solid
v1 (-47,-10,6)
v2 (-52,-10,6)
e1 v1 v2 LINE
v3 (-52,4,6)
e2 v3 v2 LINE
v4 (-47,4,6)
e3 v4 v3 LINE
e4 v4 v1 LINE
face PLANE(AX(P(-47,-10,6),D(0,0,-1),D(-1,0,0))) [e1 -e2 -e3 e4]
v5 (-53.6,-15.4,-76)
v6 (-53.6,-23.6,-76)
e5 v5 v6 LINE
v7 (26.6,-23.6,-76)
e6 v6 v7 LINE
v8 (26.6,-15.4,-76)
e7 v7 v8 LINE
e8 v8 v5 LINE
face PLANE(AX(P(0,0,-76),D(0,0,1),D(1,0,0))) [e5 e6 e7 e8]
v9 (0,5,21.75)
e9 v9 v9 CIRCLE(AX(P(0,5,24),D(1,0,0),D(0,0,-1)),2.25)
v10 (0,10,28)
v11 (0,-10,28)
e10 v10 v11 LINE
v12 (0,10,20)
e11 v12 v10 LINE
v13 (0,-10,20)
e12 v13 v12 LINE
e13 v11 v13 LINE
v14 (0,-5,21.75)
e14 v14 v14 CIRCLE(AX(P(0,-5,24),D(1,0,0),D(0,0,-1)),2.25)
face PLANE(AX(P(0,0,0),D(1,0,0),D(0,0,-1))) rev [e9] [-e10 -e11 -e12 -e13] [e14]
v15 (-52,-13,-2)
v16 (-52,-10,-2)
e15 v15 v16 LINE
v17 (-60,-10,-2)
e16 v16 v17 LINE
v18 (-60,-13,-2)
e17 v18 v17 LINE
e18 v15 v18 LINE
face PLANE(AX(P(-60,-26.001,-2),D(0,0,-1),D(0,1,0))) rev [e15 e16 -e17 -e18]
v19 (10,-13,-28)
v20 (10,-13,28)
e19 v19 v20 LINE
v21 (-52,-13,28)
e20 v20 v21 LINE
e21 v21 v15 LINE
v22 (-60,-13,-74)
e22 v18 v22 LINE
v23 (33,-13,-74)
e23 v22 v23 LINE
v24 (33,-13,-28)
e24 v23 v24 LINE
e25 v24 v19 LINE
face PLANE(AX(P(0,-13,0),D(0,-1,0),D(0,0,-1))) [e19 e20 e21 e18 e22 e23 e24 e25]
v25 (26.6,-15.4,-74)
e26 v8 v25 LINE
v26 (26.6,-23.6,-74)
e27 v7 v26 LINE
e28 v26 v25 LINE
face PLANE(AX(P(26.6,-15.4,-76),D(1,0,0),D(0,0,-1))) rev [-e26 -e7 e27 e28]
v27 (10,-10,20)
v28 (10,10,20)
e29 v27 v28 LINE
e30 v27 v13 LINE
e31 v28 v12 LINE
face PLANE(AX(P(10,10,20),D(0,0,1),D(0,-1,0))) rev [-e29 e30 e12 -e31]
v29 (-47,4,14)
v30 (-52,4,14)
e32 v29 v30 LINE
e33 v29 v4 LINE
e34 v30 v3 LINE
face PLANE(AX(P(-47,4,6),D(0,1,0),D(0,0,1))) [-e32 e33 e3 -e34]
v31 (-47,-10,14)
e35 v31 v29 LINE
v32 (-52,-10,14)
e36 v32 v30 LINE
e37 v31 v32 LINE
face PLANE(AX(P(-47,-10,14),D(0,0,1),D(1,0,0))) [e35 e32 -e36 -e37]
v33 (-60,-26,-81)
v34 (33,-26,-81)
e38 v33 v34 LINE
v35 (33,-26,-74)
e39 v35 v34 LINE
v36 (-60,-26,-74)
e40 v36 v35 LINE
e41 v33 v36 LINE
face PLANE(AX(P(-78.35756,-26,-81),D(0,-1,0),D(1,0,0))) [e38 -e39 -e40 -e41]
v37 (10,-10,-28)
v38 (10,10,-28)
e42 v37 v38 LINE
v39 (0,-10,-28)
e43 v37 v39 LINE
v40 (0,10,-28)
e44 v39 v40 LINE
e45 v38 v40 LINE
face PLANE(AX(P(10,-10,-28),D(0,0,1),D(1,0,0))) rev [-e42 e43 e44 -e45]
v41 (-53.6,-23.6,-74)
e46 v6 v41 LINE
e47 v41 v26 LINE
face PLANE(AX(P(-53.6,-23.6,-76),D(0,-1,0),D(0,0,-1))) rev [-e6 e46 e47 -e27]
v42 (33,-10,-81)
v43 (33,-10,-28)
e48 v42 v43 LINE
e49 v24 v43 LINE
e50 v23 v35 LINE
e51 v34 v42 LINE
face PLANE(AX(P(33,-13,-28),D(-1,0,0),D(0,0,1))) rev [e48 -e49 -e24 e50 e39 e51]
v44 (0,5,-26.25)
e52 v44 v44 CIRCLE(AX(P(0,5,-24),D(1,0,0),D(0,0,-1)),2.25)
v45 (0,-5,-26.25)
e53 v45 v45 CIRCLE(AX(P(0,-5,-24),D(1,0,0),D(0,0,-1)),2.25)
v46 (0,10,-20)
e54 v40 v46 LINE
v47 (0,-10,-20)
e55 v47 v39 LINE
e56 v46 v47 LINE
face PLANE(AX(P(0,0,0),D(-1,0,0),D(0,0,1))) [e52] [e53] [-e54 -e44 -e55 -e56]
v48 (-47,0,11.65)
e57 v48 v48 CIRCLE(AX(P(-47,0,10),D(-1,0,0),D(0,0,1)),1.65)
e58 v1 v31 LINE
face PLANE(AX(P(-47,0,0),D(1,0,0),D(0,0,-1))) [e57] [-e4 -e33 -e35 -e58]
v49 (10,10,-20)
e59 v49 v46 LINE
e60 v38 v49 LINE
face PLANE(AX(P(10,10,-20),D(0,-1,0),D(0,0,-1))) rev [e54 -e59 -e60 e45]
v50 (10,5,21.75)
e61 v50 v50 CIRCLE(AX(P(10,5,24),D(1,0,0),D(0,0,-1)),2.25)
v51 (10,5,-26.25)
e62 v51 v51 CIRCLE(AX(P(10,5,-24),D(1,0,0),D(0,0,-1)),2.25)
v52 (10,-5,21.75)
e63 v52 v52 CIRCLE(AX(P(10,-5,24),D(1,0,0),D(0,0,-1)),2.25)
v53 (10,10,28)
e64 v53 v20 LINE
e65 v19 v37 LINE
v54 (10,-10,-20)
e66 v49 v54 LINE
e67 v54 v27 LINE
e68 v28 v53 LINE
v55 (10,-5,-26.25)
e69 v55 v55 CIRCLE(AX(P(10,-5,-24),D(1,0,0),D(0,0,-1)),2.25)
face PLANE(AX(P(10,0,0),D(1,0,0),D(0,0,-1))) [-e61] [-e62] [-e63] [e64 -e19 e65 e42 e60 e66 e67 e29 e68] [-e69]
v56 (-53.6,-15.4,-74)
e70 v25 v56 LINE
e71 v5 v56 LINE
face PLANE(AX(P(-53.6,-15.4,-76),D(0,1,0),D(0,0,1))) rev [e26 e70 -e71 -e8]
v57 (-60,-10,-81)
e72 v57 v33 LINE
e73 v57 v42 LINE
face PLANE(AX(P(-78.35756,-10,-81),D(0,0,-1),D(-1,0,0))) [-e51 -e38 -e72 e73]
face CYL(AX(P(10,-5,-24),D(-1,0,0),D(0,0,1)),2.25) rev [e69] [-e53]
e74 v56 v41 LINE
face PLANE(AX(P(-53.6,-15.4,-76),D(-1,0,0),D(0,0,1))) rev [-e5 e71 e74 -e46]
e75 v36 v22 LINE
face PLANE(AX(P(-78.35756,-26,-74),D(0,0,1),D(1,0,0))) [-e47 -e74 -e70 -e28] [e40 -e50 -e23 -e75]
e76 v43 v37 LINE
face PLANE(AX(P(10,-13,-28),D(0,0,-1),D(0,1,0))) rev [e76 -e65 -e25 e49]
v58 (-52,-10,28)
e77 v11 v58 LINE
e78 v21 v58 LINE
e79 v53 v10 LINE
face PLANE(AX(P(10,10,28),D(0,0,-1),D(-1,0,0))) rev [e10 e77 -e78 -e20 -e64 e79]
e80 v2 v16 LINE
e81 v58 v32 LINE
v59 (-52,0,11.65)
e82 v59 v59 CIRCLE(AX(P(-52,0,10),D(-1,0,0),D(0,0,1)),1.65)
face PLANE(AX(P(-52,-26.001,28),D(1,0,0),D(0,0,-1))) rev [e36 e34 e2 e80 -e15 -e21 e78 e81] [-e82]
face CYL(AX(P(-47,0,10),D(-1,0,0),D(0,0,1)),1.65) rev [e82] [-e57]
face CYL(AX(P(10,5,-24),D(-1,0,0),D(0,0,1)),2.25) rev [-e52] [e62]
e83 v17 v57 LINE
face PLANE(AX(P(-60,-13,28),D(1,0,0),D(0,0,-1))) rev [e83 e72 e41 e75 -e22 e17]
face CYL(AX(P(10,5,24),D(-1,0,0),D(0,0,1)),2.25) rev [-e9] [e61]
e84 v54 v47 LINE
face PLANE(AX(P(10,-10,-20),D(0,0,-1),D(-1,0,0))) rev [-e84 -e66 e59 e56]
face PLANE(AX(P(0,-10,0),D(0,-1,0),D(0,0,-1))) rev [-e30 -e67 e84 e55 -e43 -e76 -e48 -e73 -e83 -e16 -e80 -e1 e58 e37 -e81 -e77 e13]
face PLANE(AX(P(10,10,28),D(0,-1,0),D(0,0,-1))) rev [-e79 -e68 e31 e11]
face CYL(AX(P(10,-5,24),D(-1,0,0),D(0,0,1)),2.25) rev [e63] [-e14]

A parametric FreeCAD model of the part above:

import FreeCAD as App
import Part
import Sketcher
from FreeCAD import Vector


def add_polygon(sketch, points):
    """Adds a closed chain of lines whose ends are joined by coincident constraints."""
    first, n = sketch.GeometryCount, len(points)
    for a, b in zip(points, points[1:] + points[:1]):
        sketch.addGeometry(Part.LineSegment(App.Vector(*a, 0), App.Vector(*b, 0)), False)
    for i in range(n):
        sketch.addConstraint(Sketcher.Constraint("Coincident", first + i, 2, first + (i + 1) % n, 1))

doc = App.newDocument("Part")
params = doc.addObject("Spreadsheet::Sheet", "Params")
for row, (alias, value) in enumerate([
    ("sketch1_diameter", "4.5 mm"),
    ("sketch1_width", "20 mm"),
    ("sketch1_height", "8 mm"),
    ("pad1_length", "10 mm"),
    ("sketch2_diameter", "4.5 mm"),
    ("sketch2_width", "20 mm"),
    ("sketch2_height", "8 mm"),
    ("pad2_length", "10 mm"),
    ("sketch3_width", "93 mm"),
    ("sketch3_width2", "23 mm"),
    ("sketch3_height", "100 mm"),
    ("sketch3_height2", "44 mm"),
    ("pad3_length", "3 mm"),
    ("sketch4_width", "3 mm"),
    ("sketch4_width2", "13 mm"),
    ("sketch4_height", "9 mm"),
    ("sketch4_height2", "2 mm"),
    ("pad4_length", "93 mm"),
    ("sketch5_width", "8 mm"),
    ("sketch5_height", "30 mm"),
    ("sketch6_width", "80.2 mm"),
    ("sketch6_height", "8.2 mm"),
    ("pocket2_length", "2 mm"),
    ("sketch7_diameter", "3.3 mm"),
    ("sketch7_width", "14 mm"),
    ("sketch7_height", "8 mm"),
    ("pad5_length", "5 mm"),
], start=1):
    params.set(f"A{row}", alias)
    params.set(f"B{row}", "=" + value)
    params.setAlias(f"B{row}", alias)

body = doc.addObject("PartDesign::Body", "Body")

# Sketch on YZ plane
sketch1 = doc.addObject("Sketcher::SketchObject", "Sketch")
body.addObject(sketch1)
sketch1.AttachmentSupport = (doc.YZ_Plane, [""])
sketch1.MapMode = "FlatFace"
add_polygon(sketch1, [(10, 28), (-10, 28), (-10, 20), (10, 20)])  # lines 0-3
sketch1.addGeometry(Part.Circle(Vector(-5, 24, 0), Vector(0, 0, 1), 2.25), False)  # 4
sketch1.addGeometry(Part.Circle(Vector(5, 24, 0), Vector(0, 0, 1), 2.25), False)  # 5
sketch1.addConstraint(Sketcher.Constraint("Horizontal", 0))
sketch1.addConstraint(Sketcher.Constraint("Vertical", 1))
sketch1.addConstraint(Sketcher.Constraint("Horizontal", 2))
sketch1.addConstraint(Sketcher.Constraint("Vertical", 3))
sketch1.addConstraint(Sketcher.Constraint("Equal", 4, 5))
sketch1.addConstraint(Sketcher.Constraint("Symmetric", 4, 3, 5, 3, -2))
sketch1.addConstraint(Sketcher.Constraint("Diameter", 4, 4.5))
sketch1.addConstraint(Sketcher.Constraint("DistanceX", 0, 2, 0, 1, 20.0))
sketch1.addConstraint(Sketcher.Constraint("DistanceY", 1, 2, 1, 1, 8.0))
sketch1.addConstraint(Sketcher.Constraint("DistanceX", 4, 3, -1, 1, 5.0))
sketch1.addConstraint(Sketcher.Constraint("DistanceY", -1, 1, 4, 3, 24.0))
sketch1.addConstraint(Sketcher.Constraint("DistanceX", 0, 2, -1, 1, 10.0))
sketch1.addConstraint(Sketcher.Constraint("DistanceY", -1, 1, 0, 2, 28.0))
sketch1.setExpression("Constraints[10]", "Params.sketch1_diameter")
sketch1.setExpression("Constraints[11]", "Params.sketch1_width")
sketch1.setExpression("Constraints[12]", "Params.sketch1_height")
pad1 = doc.addObject("PartDesign::Pad", "Pad")
body.addObject(pad1)
pad1.Profile = sketch1
pad1.setExpression("Length", "Params.pad1_length")
body2 = doc.addObject("PartDesign::Body", "Body001")

# Sketch on YZ plane
sketch2 = doc.addObject("Sketcher::SketchObject", "Sketch001")
body2.addObject(sketch2)
sketch2.AttachmentSupport = (doc.getObject("YZ_Plane001"), [""])
sketch2.MapMode = "FlatFace"
add_polygon(sketch2, [(10, -20), (-10, -20), (-10, -28), (10, -28)])  # lines 0-3
sketch2.addGeometry(Part.Circle(Vector(-5, -24, 0), Vector(0, 0, 1), 2.25), False)  # 4
sketch2.addGeometry(Part.Circle(Vector(5, -24, 0), Vector(0, 0, 1), 2.25), False)  # 5
sketch2.addConstraint(Sketcher.Constraint("Horizontal", 0))
sketch2.addConstraint(Sketcher.Constraint("Vertical", 1))
sketch2.addConstraint(Sketcher.Constraint("Horizontal", 2))
sketch2.addConstraint(Sketcher.Constraint("Vertical", 3))
sketch2.addConstraint(Sketcher.Constraint("Equal", 4, 5))
sketch2.addConstraint(Sketcher.Constraint("Symmetric", 4, 3, 5, 3, -2))
sketch2.addConstraint(Sketcher.Constraint("Diameter", 4, 4.5))
sketch2.addConstraint(Sketcher.Constraint("DistanceX", 0, 2, 0, 1, 20.0))
sketch2.addConstraint(Sketcher.Constraint("DistanceY", 1, 2, 1, 1, 8.0))
sketch2.addConstraint(Sketcher.Constraint("DistanceX", 4, 3, -1, 1, 5.0))
sketch2.addConstraint(Sketcher.Constraint("DistanceY", 4, 3, -1, 1, 24.0))
sketch2.addConstraint(Sketcher.Constraint("DistanceX", 0, 2, -1, 1, 10.0))
sketch2.addConstraint(Sketcher.Constraint("DistanceY", 0, 2, -1, 1, 20.0))
sketch2.setExpression("Constraints[10]", "Params.sketch2_diameter")
sketch2.setExpression("Constraints[11]", "Params.sketch2_width")
sketch2.setExpression("Constraints[12]", "Params.sketch2_height")
pad2 = doc.addObject("PartDesign::Pad", "Pad001")
body2.addObject(pad2)
pad2.Profile = sketch2
pad2.setExpression("Length", "Params.pad2_length")
body.AllowCompound = True
doc.recompute()

boolean = doc.addObject("PartDesign::Boolean", "Boolean")
body.addObject(boolean)
boolean.Type = "Fuse"
boolean.addObjects([body2])

# Sketch on XZ plane
sketch3 = doc.addObject("Sketcher::SketchObject", "Sketch002")
body.addObject(sketch3)
sketch3.AttachmentSupport = (doc.XZ_Plane, [""])
sketch3.MapMode = "FlatFace"
sketch3.AttachmentOffset = App.Placement(Vector(0, 0, 10), App.Rotation())
add_polygon(sketch3, [(-60, 28), (-60, -72), (33, -72), (33, -28), (10, -28), (10, 28)])  # lines 0-5
sketch3.addConstraint(Sketcher.Constraint("Vertical", 0))
sketch3.addConstraint(Sketcher.Constraint("Horizontal", 1))
sketch3.addConstraint(Sketcher.Constraint("Vertical", 2))
sketch3.addConstraint(Sketcher.Constraint("Horizontal", 3))
sketch3.addConstraint(Sketcher.Constraint("Vertical", 4))
sketch3.addConstraint(Sketcher.Constraint("Horizontal", 5))
sketch3.addConstraint(Sketcher.Constraint("DistanceX", 1, 1, 1, 2, 93.0))
sketch3.addConstraint(Sketcher.Constraint("DistanceX", 3, 2, 3, 1, 23.0))
sketch3.addConstraint(Sketcher.Constraint("DistanceY", 0, 2, 0, 1, 100.0))
sketch3.addConstraint(Sketcher.Constraint("DistanceY", 2, 1, 2, 2, 44.0))
sketch3.addConstraint(Sketcher.Constraint("DistanceX", 0, 2, -1, 1, 60.0))
sketch3.addConstraint(Sketcher.Constraint("DistanceY", 0, 2, -1, 1, 72.0))
sketch3.setExpression("Constraints[12]", "Params.sketch3_width")
sketch3.setExpression("Constraints[13]", "Params.sketch3_width2")
sketch3.setExpression("Constraints[14]", "Params.sketch3_height")
sketch3.setExpression("Constraints[15]", "Params.sketch3_height2")
pad3 = doc.addObject("PartDesign::Pad", "Pad002")
body.addObject(pad3)
pad3.Profile = sketch3
pad3.setExpression("Length", "Params.pad3_length")

# Sketch on YZ plane
sketch4 = doc.addObject("Sketcher::SketchObject", "Sketch003")
body.addObject(sketch4)
sketch4.AttachmentSupport = (doc.YZ_Plane, [""])
sketch4.MapMode = "FlatFace"
sketch4.AttachmentOffset = App.Placement(Vector(0, 0, 33), App.Rotation())
add_polygon(sketch4, [(-10, -81), (-10, -72), (-13, -72), (-13, -74), (-26, -74), (-26, -81)])  # lines 0-5
sketch4.addConstraint(Sketcher.Constraint("Vertical", 0))
sketch4.addConstraint(Sketcher.Constraint("Horizontal", 1))
sketch4.addConstraint(Sketcher.Constraint("Vertical", 2))
sketch4.addConstraint(Sketcher.Constraint("Horizontal", 3))
sketch4.addConstraint(Sketcher.Constraint("Vertical", 4))
sketch4.addConstraint(Sketcher.Constraint("Horizontal", 5))
sketch4.addConstraint(Sketcher.Constraint("DistanceX", 1, 2, 1, 1, 3.0))
sketch4.addConstraint(Sketcher.Constraint("DistanceX", 3, 2, 3, 1, 13.0))
sketch4.addConstraint(Sketcher.Constraint("DistanceY", 0, 1, 0, 2, 9.0))
sketch4.addConstraint(Sketcher.Constraint("DistanceY", 2, 2, 2, 1, 2.0))
sketch4.addConstraint(Sketcher.Constraint("DistanceX", 0, 2, -1, 1, 10.0))
sketch4.addConstraint(Sketcher.Constraint("DistanceY", 0, 2, -1, 1, 72.0))
sketch4.setExpression("Constraints[12]", "Params.sketch4_width")
sketch4.setExpression("Constraints[13]", "Params.sketch4_width2")
sketch4.setExpression("Constraints[14]", "Params.sketch4_height")
sketch4.setExpression("Constraints[15]", "Params.sketch4_height2")
pad4 = doc.addObject("PartDesign::Pad", "Pad003")
body.addObject(pad4)
pad4.Profile = sketch4
pad4.setExpression("Length", "Params.pad4_length")
pad4.Reversed = True

# Sketch on XZ plane
sketch5 = doc.addObject("Sketcher::SketchObject", "Sketch004")
body.addObject(sketch5)
sketch5.AttachmentSupport = (doc.XZ_Plane, [""])
sketch5.MapMode = "FlatFace"
sketch5.AttachmentOffset = App.Placement(Vector(0, 0, 10), App.Rotation())
add_polygon(sketch5, [(-60, -2), (-60, 28), (-52, 28), (-52, -2)])  # lines 0-3
sketch5.addConstraint(Sketcher.Constraint("Vertical", 0))
sketch5.addConstraint(Sketcher.Constraint("Horizontal", 1))
sketch5.addConstraint(Sketcher.Constraint("Vertical", 2))
sketch5.addConstraint(Sketcher.Constraint("Horizontal", 3))
sketch5.addConstraint(Sketcher.Constraint("DistanceX", 1, 1, 1, 2, 8.0))
sketch5.addConstraint(Sketcher.Constraint("DistanceY", 0, 1, 0, 2, 30.0))
sketch5.addConstraint(Sketcher.Constraint("DistanceX", 0, 2, -1, 1, 60.0))
sketch5.addConstraint(Sketcher.Constraint("DistanceY", -1, 1, 0, 2, 28.0))
sketch5.setExpression("Constraints[8]", "Params.sketch5_width")
sketch5.setExpression("Constraints[9]", "Params.sketch5_height")
pocket1 = doc.addObject("PartDesign::Pocket", "Pocket")
body.addObject(pocket1)
pocket1.Profile = sketch5
pocket1.Type = "UpToFirst"
pocket1.Reversed = True

# Sketch on XY plane
sketch6 = doc.addObject("Sketcher::SketchObject", "Sketch005")
body.addObject(sketch6)
sketch6.AttachmentSupport = (doc.XY_Plane, [""])
sketch6.MapMode = "FlatFace"
sketch6.AttachmentOffset = App.Placement(Vector(0, 0, -74), App.Rotation())
add_polygon(sketch6, [(-53.6, -15.4), (-53.6, -23.6), (26.6, -23.6), (26.6, -15.4)])  # lines 0-3
sketch6.addConstraint(Sketcher.Constraint("Vertical", 0))
sketch6.addConstraint(Sketcher.Constraint("Horizontal", 1))
sketch6.addConstraint(Sketcher.Constraint("Vertical", 2))
sketch6.addConstraint(Sketcher.Constraint("Horizontal", 3))
sketch6.addConstraint(Sketcher.Constraint("DistanceX", 1, 1, 1, 2, 80.2))
sketch6.addConstraint(Sketcher.Constraint("DistanceY", 0, 2, 0, 1, 8.2))
sketch6.addConstraint(Sketcher.Constraint("DistanceX", 0, 2, -1, 1, 53.6))
sketch6.addConstraint(Sketcher.Constraint("DistanceY", 0, 2, -1, 1, 23.6))
sketch6.setExpression("Constraints[8]", "Params.sketch6_width")
sketch6.setExpression("Constraints[9]", "Params.sketch6_height")
pocket2 = doc.addObject("PartDesign::Pocket", "Pocket001")
body.addObject(pocket2)
pocket2.Profile = sketch6
pocket2.setExpression("Length", "Params.pocket2_length")

# Sketch on YZ plane
sketch7 = doc.addObject("Sketcher::SketchObject", "Sketch006")
body.addObject(sketch7)
sketch7.AttachmentSupport = (doc.YZ_Plane, [""])
sketch7.MapMode = "FlatFace"
sketch7.AttachmentOffset = App.Placement(Vector(0, 0, -52), App.Rotation())
add_polygon(sketch7, [(4, 6), (-10, 6), (-10, 14), (4, 14)])  # lines 0-3
sketch7.addGeometry(Part.Circle(Vector(0, 10, 0), Vector(0, 0, 1), 1.65), False)  # 4
sketch7.addConstraint(Sketcher.Constraint("Horizontal", 0))
sketch7.addConstraint(Sketcher.Constraint("Vertical", 1))
sketch7.addConstraint(Sketcher.Constraint("Horizontal", 2))
sketch7.addConstraint(Sketcher.Constraint("Vertical", 3))
sketch7.addConstraint(Sketcher.Constraint("PointOnObject", 4, 3, -2))
sketch7.addConstraint(Sketcher.Constraint("Diameter", 4, 3.3))
sketch7.addConstraint(Sketcher.Constraint("DistanceX", 0, 2, 0, 1, 14.0))
sketch7.addConstraint(Sketcher.Constraint("DistanceY", 1, 1, 1, 2, 8.0))
sketch7.addConstraint(Sketcher.Constraint("DistanceY", -1, 1, 4, 3, 10.0))
sketch7.addConstraint(Sketcher.Constraint("DistanceX", 0, 2, -1, 1, 10.0))
sketch7.addConstraint(Sketcher.Constraint("DistanceY", -1, 1, 0, 2, 6.0))
sketch7.setExpression("Constraints[9]", "Params.sketch7_diameter")
sketch7.setExpression("Constraints[10]", "Params.sketch7_width")
sketch7.setExpression("Constraints[11]", "Params.sketch7_height")
pad5 = doc.addObject("PartDesign::Pad", "Pad004")
body.addObject(pad5)
pad5.Profile = sketch7
pad5.setExpression("Length", "Params.pad5_length")

doc.recompute()
